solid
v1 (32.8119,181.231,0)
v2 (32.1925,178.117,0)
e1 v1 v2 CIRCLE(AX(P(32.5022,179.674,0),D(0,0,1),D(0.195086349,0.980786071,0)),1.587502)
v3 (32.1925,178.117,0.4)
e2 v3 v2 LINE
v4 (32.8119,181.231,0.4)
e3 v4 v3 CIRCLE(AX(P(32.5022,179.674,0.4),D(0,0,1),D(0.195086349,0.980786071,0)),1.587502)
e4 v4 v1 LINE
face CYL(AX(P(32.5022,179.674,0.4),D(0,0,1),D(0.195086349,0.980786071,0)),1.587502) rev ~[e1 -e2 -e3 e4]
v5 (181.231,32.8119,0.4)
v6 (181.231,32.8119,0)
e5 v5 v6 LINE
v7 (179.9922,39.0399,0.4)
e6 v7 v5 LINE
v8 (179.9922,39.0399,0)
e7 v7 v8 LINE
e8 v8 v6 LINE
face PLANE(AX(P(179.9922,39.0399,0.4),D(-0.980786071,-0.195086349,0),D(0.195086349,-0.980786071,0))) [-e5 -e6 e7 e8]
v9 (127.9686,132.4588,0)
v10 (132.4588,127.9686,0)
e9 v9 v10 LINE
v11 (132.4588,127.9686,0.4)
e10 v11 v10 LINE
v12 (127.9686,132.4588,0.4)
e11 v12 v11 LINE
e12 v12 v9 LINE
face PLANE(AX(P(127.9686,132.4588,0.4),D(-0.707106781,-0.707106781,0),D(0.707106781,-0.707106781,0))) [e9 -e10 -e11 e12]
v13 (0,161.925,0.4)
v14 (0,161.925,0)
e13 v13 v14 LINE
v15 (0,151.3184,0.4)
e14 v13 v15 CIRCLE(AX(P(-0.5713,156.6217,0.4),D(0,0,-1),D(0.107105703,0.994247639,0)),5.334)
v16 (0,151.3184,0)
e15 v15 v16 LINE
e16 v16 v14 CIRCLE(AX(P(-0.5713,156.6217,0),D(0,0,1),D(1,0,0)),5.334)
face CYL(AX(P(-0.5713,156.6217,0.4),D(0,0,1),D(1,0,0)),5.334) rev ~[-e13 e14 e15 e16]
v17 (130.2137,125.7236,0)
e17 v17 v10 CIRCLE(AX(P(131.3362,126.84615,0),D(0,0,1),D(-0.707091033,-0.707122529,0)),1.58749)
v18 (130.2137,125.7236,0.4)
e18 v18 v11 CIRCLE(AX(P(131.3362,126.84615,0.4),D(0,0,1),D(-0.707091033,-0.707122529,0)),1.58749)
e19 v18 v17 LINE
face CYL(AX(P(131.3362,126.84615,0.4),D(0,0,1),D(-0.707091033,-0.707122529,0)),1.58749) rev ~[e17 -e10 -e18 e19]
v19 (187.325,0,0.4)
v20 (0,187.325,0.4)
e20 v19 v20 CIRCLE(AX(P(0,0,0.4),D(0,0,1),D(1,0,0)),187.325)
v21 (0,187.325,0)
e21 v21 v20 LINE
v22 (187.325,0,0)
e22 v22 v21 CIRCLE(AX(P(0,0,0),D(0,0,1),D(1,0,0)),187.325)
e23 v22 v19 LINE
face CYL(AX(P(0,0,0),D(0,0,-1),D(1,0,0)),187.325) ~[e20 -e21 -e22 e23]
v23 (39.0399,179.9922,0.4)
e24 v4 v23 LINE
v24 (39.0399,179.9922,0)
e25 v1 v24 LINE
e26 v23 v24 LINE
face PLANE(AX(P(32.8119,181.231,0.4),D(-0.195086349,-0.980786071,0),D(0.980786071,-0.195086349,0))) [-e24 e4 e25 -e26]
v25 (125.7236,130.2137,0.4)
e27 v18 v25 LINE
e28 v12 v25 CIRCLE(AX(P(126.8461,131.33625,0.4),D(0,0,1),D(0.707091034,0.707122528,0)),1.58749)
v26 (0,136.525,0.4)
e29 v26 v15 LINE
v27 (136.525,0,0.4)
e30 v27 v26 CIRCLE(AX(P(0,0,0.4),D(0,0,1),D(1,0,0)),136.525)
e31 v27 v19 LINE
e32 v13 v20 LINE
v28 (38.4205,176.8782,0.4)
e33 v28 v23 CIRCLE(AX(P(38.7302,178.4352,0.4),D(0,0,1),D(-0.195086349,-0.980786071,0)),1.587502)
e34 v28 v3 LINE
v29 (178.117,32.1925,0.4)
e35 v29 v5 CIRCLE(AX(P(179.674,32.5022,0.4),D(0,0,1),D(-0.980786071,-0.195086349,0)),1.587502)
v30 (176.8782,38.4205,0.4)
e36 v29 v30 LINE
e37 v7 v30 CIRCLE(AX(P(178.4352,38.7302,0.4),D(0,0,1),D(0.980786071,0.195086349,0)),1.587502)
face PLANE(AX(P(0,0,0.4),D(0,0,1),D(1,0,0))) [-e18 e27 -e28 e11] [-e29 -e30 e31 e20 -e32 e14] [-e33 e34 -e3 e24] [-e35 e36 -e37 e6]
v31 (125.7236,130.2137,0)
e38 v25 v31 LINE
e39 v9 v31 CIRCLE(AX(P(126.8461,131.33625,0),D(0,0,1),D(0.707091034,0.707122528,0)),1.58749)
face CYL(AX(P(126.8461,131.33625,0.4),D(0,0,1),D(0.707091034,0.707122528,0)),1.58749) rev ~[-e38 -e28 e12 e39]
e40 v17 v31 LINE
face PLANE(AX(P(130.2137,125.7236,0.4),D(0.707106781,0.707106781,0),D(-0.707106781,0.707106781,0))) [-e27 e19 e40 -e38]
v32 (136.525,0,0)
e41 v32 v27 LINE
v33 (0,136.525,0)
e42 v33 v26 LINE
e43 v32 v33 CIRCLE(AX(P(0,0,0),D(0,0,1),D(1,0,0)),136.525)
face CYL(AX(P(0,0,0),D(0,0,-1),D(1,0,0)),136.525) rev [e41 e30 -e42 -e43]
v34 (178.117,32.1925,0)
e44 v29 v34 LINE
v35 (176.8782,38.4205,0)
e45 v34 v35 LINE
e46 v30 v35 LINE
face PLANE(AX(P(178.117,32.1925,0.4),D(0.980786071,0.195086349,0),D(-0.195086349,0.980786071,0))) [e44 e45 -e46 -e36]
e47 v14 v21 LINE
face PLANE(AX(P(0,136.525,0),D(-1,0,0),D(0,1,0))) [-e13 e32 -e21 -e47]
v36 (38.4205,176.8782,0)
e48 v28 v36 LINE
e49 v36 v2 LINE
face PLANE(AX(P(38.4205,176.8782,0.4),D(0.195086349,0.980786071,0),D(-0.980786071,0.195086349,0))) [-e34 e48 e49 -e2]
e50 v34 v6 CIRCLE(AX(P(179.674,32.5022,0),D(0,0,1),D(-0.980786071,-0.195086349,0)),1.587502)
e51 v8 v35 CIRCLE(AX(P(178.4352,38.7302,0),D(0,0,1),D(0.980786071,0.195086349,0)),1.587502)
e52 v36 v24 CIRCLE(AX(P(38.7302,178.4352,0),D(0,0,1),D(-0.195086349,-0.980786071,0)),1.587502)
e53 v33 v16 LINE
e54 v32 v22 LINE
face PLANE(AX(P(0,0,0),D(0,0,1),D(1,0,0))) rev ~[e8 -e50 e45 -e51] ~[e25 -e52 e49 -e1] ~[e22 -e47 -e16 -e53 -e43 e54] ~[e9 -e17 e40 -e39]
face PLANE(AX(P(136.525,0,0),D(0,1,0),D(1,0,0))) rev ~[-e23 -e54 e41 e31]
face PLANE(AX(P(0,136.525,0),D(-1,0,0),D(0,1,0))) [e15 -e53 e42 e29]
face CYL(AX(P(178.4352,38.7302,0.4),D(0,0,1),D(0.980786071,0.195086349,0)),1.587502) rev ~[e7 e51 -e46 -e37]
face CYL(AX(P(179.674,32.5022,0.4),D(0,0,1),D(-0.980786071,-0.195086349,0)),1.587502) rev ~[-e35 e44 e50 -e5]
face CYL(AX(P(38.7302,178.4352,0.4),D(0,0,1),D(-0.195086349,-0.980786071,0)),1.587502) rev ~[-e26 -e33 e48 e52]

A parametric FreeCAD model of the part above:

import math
import FreeCAD as App
import Part
import Sketcher

V = App.Vector
Q = App.Units.Quantity

doc = App.newDocument("Part")
body = doc.addObject("PartDesign::Body", "Body")

sketch1 = body.newObject("Sketcher::SketchObject", "Sketch")
sketch1.AttachmentSupport = (doc.getObject("XY_Plane"), [""])
sketch1.MapMode = "FlatFace"
sketch1.addGeometry(Part.LineSegment(V(136.525, 0, 0), V(187.325, 0, 0)), False)
sketch1.addGeometry(Part.ArcOfCircle(Part.Circle(V(0, 0, 0), V(0, 0, 1), 187.325), math.radians(0), math.radians(90)), False)
sketch1.addGeometry(Part.LineSegment(V(0, 187.325, 0), V(0, 136.525, 0)), False)
sketch1.addGeometry(Part.ArcOfCircle(Part.Circle(V(0, 0, 0), V(0, 0, 1), 136.525), math.radians(0), math.radians(90)), False)
sketch1.addConstraint(Sketcher.Constraint("Coincident", 0, 2, 1, 1))
sketch1.addConstraint(Sketcher.Constraint("Coincident", 1, 2, 2, 1))
sketch1.addConstraint(Sketcher.Constraint("Coincident", 2, 2, 3, 2))
sketch1.addConstraint(Sketcher.Constraint("Coincident", 3, 1, 0, 1))
sketch1.addConstraint(Sketcher.Constraint("Horizontal", 0))
sketch1.addConstraint(Sketcher.Constraint("Vertical", 2))
sketch1.addConstraint(Sketcher.Constraint("Coincident", 1, 3, -1, 1))
sketch1.addConstraint(Sketcher.Constraint("Coincident", 3, 3, -1, 1))
sketch1.addConstraint(Sketcher.Constraint("PointOnObject", 0, 2, -1))
sketch1.addConstraint(Sketcher.Constraint("PointOnObject", 1, 2, -2))
sketch1.addConstraint(Sketcher.Constraint("Radius", 1, Q("7.375 in")))
sketch1.addConstraint(Sketcher.Constraint("Radius", 3, Q("5.375 in")))
pad1 = body.newObject("PartDesign::Pad", "Pad")
pad1.Profile = sketch1
pad1.Length = 0.4

sketch2 = body.newObject("Sketcher::SketchObject", "Sketch001")
sketch2.AttachmentSupport = (doc.getObject("XY_Plane"), [""])
sketch2.MapMode = "FlatFace"
sketch2.AttachmentOffset = App.Placement(V(0, 0, 0.4), App.Rotation())
sketch2.addGeometry(Part.LineSegment(V(176.8782, 38.4205, 0), V(178.117, 32.1925, 0)), False)
sketch2.addGeometry(Part.ArcOfCircle(Part.Circle(V(179.674, 32.5022, 0), V(0, 0, 1), 1.587502), math.radians(-168.750232), math.radians(11.249768)), False)
sketch2.addGeometry(Part.LineSegment(V(181.231, 32.8119, 0), V(179.9922, 39.0399, 0)), False)
sketch2.addGeometry(Part.ArcOfCircle(Part.Circle(V(178.4352, 38.7302, 0), V(0, 0, 1), 1.587502), math.radians(11.249768), math.radians(191.249768)), False)
sketch2.addGeometry(Part.LineSegment(V(125.7236, 130.2137, 0), V(130.2137, 125.7236, 0)), False)
sketch2.addGeometry(Part.ArcOfCircle(Part.Circle(V(131.3362, 126.8461, 0), V(0, 0, 1), 1.587455), math.radians(-135), math.radians(44.997448)), False)
sketch2.addGeometry(Part.LineSegment(V(132.4588, 127.9686, 0), V(127.9686, 132.4588, 0)), False)
sketch2.addGeometry(Part.ArcOfCircle(Part.Circle(V(126.8461, 131.3362, 0), V(0, 0, 1), 1.587525), math.radians(45.002552), math.radians(225)), False)
sketch2.addGeometry(Part.LineSegment(V(32.1925, 178.117, 0), V(38.4205, 176.8782, 0)), False)
sketch2.addGeometry(Part.ArcOfCircle(Part.Circle(V(38.7302, 178.4352, 0), V(0, 0, 1), 1.587502), math.radians(-101.249768), math.radians(78.750232)), False)
sketch2.addGeometry(Part.LineSegment(V(39.0399, 179.9922, 0), V(32.8119, 181.231, 0)), False)
sketch2.addGeometry(Part.ArcOfCircle(Part.Circle(V(32.5022, 179.674, 0), V(0, 0, 1), 1.587502), math.radians(78.750232), math.radians(258.750232)), False)
sketch2.addGeometry(Part.Circle(V(-0.5713, 156.6217, 0), V(0, 0, 1), 5.333983), False)
sketch2.addConstraint(Sketcher.Constraint("Tangent", 0, 2, 1, 1))
sketch2.addConstraint(Sketcher.Constraint("Tangent", 1, 2, 2, 1))
sketch2.addConstraint(Sketcher.Constraint("Tangent", 2, 2, 3, 1))
sketch2.addConstraint(Sketcher.Constraint("Tangent", 3, 2, 0, 1))
sketch2.addConstraint(Sketcher.Constraint("Tangent", 4, 2, 5, 1))
sketch2.addConstraint(Sketcher.Constraint("Tangent", 5, 2, 6, 1))
sketch2.addConstraint(Sketcher.Constraint("Tangent", 6, 2, 7, 1))
sketch2.addConstraint(Sketcher.Constraint("Tangent", 7, 2, 4, 1))
sketch2.addConstraint(Sketcher.Constraint("Tangent", 8, 2, 9, 1))
sketch2.addConstraint(Sketcher.Constraint("Tangent", 9, 2, 10, 1))
sketch2.addConstraint(Sketcher.Constraint("Tangent", 10, 2, 11, 1))
sketch2.addConstraint(Sketcher.Constraint("Tangent", 11, 2, 8, 1))
sketch2.addConstraint(Sketcher.Constraint("Equal", 1, 3))
sketch2.addConstraint(Sketcher.Constraint("Equal", 3, 5))
sketch2.addConstraint(Sketcher.Constraint("Equal", 5, 7))
sketch2.addConstraint(Sketcher.Constraint("Equal", 7, 9))
sketch2.addConstraint(Sketcher.Constraint("Equal", 9, 11))
sketch2.addConstraint(Sketcher.Constraint("Equal", 2, 4))
sketch2.addConstraint(Sketcher.Constraint("Equal", 6, 8))
sketch2.addConstraint(Sketcher.Constraint("Diameter", 12, Q("0.42 in")))
sketch2.addConstraint(Sketcher.Constraint("Angle", 4, Q("-45 deg")))
sketch2.addConstraint(Sketcher.Constraint("Radius", 1, Q("0.0625 in")))
sketch2.addConstraint(Sketcher.Constraint("Distance", 0, Q("0.25 in")))
sketch2.addConstraint(Sketcher.Constraint("Angle", 0, Q("-78.7502 deg")))
sketch2.addConstraint(Sketcher.Constraint("Angle", 8, Q("-11.2498 deg")))
sketch2.addConstraint(Sketcher.Constraint("DistanceX", -1, 1, 3, 3, Q("7.025 in")))
sketch2.addConstraint(Sketcher.Constraint("DistanceY", -1, 1, 9, 3, Q("7.025 in")))
sketch2.addConstraint(Sketcher.Constraint("DistanceY", -1, 1, 2, 2, Q("1.537 in")))
sketch2.addConstraint(Sketcher.Constraint("DistanceX", -1, 1, 9, 2, Q("1.537 in")))
sketch2.addConstraint(Sketcher.Constraint("DistanceY", 7, 3, 8, 2, Q("1.793 in")))
sketch2.addConstraint(Sketcher.Constraint("DistanceX", 12, 3, -1, 1, Q("0.0225 in")))
sketch2.addConstraint(Sketcher.Constraint("DistanceY", -1, 1, 12, 3, Q("6.1662 in")))
sketch2.addConstraint(Sketcher.Constraint("DistanceX", -1, 1, 5, 2, Q("5.2149 in")))
pocket1 = body.newObject("PartDesign::Pocket", "Pocket")
pocket1.Profile = sketch2
pocket1.Type = "ThroughAll"

doc.recompute()
